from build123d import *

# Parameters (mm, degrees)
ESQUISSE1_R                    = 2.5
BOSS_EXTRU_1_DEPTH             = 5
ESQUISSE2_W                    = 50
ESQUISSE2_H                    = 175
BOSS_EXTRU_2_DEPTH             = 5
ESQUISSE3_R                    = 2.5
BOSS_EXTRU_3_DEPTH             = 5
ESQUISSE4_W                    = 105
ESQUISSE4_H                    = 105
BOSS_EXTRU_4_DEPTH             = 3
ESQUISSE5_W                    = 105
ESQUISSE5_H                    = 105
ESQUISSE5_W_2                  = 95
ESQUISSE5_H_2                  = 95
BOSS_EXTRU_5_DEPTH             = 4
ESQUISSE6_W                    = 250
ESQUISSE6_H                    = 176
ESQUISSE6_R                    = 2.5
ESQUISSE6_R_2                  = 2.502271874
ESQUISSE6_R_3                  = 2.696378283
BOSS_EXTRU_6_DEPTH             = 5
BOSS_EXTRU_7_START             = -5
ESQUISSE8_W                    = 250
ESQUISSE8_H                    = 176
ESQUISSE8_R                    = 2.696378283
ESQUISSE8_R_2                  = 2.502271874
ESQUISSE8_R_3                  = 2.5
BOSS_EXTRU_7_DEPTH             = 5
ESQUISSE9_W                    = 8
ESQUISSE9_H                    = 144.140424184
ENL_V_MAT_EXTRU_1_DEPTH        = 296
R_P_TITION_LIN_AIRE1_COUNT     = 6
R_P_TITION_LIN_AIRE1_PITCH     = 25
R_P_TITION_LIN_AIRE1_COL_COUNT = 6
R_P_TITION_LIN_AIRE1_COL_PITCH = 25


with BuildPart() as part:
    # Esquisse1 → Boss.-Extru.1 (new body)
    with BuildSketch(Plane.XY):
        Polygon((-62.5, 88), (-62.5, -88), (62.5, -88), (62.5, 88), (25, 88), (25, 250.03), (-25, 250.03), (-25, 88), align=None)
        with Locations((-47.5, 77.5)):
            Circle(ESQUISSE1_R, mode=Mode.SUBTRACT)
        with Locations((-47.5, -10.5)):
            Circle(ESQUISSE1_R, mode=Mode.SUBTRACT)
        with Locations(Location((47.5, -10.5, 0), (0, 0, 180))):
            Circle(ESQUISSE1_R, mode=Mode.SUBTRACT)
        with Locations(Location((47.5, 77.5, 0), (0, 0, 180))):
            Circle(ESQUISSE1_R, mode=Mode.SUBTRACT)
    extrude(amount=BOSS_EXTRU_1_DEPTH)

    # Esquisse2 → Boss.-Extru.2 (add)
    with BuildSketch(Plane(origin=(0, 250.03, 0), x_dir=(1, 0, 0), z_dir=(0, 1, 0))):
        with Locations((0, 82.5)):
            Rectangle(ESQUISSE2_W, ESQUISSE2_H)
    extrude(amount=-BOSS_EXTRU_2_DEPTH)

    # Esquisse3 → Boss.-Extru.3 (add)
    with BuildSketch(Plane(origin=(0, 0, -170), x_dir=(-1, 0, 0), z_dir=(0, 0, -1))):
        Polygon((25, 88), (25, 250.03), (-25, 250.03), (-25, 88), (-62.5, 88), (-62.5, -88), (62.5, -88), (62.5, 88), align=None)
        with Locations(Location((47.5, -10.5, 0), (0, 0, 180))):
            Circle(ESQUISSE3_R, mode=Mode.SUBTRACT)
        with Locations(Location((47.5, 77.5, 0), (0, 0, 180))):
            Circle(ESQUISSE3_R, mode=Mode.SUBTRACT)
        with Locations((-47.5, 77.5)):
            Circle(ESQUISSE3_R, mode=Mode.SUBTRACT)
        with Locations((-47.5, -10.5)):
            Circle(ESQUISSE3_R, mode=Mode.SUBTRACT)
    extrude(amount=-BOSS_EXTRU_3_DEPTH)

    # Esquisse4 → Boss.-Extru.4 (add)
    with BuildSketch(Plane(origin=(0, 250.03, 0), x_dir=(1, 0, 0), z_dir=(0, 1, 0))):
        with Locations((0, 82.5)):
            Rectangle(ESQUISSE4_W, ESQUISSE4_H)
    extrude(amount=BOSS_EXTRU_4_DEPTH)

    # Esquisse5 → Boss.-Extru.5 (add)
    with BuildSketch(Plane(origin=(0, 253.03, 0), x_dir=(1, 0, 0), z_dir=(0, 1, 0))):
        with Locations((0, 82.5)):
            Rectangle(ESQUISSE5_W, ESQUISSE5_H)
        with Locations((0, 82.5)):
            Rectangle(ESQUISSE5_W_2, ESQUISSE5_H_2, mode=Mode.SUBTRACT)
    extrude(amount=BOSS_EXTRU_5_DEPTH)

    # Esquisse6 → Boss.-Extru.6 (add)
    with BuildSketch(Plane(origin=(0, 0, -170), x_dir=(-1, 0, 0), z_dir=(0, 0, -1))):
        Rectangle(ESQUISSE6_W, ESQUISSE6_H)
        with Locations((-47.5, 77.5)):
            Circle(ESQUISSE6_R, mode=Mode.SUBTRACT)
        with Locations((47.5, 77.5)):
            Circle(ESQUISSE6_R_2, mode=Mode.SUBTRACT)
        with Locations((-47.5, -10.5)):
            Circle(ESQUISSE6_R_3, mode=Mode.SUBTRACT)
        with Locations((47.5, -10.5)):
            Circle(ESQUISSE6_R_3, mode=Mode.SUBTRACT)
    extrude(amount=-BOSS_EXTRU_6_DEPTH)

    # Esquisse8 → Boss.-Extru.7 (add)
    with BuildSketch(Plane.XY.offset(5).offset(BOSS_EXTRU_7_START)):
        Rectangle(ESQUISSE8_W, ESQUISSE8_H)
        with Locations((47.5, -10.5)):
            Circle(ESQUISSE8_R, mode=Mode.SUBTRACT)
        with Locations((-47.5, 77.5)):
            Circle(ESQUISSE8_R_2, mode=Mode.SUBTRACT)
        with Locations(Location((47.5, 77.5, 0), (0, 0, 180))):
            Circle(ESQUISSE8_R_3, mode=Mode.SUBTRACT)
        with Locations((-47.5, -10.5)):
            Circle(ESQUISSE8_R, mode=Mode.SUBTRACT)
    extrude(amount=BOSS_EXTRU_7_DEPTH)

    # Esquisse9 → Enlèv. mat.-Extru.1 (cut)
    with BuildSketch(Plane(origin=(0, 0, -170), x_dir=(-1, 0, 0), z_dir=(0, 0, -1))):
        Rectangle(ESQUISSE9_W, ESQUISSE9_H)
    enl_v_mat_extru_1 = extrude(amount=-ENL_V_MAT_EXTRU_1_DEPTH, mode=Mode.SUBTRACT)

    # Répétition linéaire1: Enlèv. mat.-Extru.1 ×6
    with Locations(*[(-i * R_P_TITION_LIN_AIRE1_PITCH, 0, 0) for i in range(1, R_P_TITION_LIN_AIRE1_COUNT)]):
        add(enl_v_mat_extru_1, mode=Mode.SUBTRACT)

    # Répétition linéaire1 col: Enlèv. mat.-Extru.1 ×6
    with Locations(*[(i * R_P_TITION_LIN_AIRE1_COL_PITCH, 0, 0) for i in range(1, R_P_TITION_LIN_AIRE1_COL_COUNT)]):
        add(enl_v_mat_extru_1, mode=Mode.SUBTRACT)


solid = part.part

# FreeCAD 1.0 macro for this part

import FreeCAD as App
import Part
import Sketcher
from FreeCAD import Vector


def add_polygon(sketch, points):
    """Adds a closed chain of lines whose ends are joined by coincident constraints."""
    first, n = sketch.GeometryCount, len(points)
    for a, b in zip(points, points[1:] + points[:1]):
        sketch.addGeometry(Part.LineSegment(App.Vector(*a, 0), App.Vector(*b, 0)), False)
    for i in range(n):
        sketch.addConstraint(Sketcher.Constraint("Coincident", first + i, 2, first + (i + 1) % n, 1))

doc = App.newDocument("Part")
body = doc.addObject("PartDesign::Body", "Body")

# Sketch on XY plane
sketch1 = doc.addObject("Sketcher::SketchObject", "Sketch")
body.addObject(sketch1)
sketch1.AttachmentSupport = (doc.XY_Plane, [""])
sketch1.MapMode = "FlatFace"
add_polygon(sketch1, [(-62.5, 88), (-62.5, -88), (62.5, -88), (62.5, 88), (25, 88), (25, 250), (-25, 250), (-25, 88)])  # lines 0-7
sketch1.addGeometry(Part.Circle(Vector(-47.5, -10.5, 0), Vector(0, 0, 1), 2.5), False)  # 8
sketch1.addGeometry(Part.Circle(Vector(47.5, -10.5, 0), Vector(0, 0, 1), 2.5), False)  # 9
sketch1.addGeometry(Part.Circle(Vector(-47.5, 77.5, 0), Vector(0, 0, 1), 2.5), False)  # 10
sketch1.addGeometry(Part.Circle(Vector(47.5, 77.5, 0), Vector(0, 0, 1), 2.5), False)  # 11
sketch1.addConstraint(Sketcher.Constraint("Vertical", 0))
sketch1.addConstraint(Sketcher.Constraint("Horizontal", 1))
sketch1.addConstraint(Sketcher.Constraint("Vertical", 2))
sketch1.addConstraint(Sketcher.Constraint("Horizontal", 3))
sketch1.addConstraint(Sketcher.Constraint("Vertical", 4))
sketch1.addConstraint(Sketcher.Constraint("Horizontal", 5))
sketch1.addConstraint(Sketcher.Constraint("Vertical", 6))
sketch1.addConstraint(Sketcher.Constraint("Horizontal", 7))
sketch1.addConstraint(Sketcher.Constraint("Equal", 8, 9))
sketch1.addConstraint(Sketcher.Constraint("Equal", 9, 10))
sketch1.addConstraint(Sketcher.Constraint("Equal", 10, 11))
sketch1.addConstraint(Sketcher.Constraint("Symmetric", 0, 2, 2, 2, -1, 1))
sketch1.addConstraint(Sketcher.Constraint("Symmetric", 8, 3, 9, 3, -2))
sketch1.addConstraint(Sketcher.Constraint("Symmetric", 10, 3, 11, 3, -2))
sketch1.addConstraint(Sketcher.Constraint("Symmetric", 3, 2, 6, 2, -2))
sketch1.addConstraint(Sketcher.Constraint("Vertical", 8, 3, 10, 3))
sketch1.addConstraint(Sketcher.Constraint("Diameter", 8, 5.0))
sketch1.addConstraint(Sketcher.Constraint("DistanceX", 1, 1, 1, 2, 125.0))
sketch1.addConstraint(Sketcher.Constraint("DistanceX", 5, 2, 5, 1, 50.0))
sketch1.addConstraint(Sketcher.Constraint("DistanceY", 0, 2, 0, 1, 176.0))
sketch1.addConstraint(Sketcher.Constraint("DistanceX", 8, 3, 9, 3, 95.0))
sketch1.addConstraint(Sketcher.Constraint("DistanceY", 8, 3, 10, 3, 88.0))
sketch1.addConstraint(Sketcher.Constraint("DistanceY", 4, 1, 4, 2, 162.03))
sketch1.addConstraint(Sketcher.Constraint("DistanceY", 8, 3, -1, 1, 10.5))
pad1 = doc.addObject("PartDesign::Pad", "Pad")
body.addObject(pad1)
pad1.Profile = sketch1
pad1.Length = 5

# Sketch on XZ plane
sketch2 = doc.addObject("Sketcher::SketchObject", "Sketch001")
body.addObject(sketch2)
sketch2.AttachmentSupport = (doc.XZ_Plane, [""])
sketch2.MapMode = "FlatFace"
sketch2.AttachmentOffset = App.Placement(Vector(0, 0, -250.03), App.Rotation())
add_polygon(sketch2, [(-25, -170), (-25, 5), (25, 5), (25, -170)])  # lines 0-3
sketch2.addConstraint(Sketcher.Constraint("Vertical", 0))
sketch2.addConstraint(Sketcher.Constraint("Horizontal", 1))
sketch2.addConstraint(Sketcher.Constraint("Vertical", 2))
sketch2.addConstraint(Sketcher.Constraint("Horizontal", 3))
sketch2.addConstraint(Sketcher.Constraint("DistanceX", 1, 1, 1, 2, 50.0))
sketch2.addConstraint(Sketcher.Constraint("DistanceY", 0, 1, 0, 2, 175.0))
sketch2.addConstraint(Sketcher.Constraint("DistanceX", 0, 2, -1, 1, 25.0))
sketch2.addConstraint(Sketcher.Constraint("DistanceY", -1, 1, 0, 2, 5.0))
pad2 = doc.addObject("PartDesign::Pad", "Pad001")
body.addObject(pad2)
pad2.Profile = sketch2
pad2.Length = 5

# Sketch on XY plane
sketch3 = doc.addObject("Sketcher::SketchObject", "Sketch002")
body.addObject(sketch3)
sketch3.AttachmentSupport = (doc.XY_Plane, [""])
sketch3.MapMode = "FlatFace"
sketch3.AttachmentOffset = App.Placement(Vector(0, 0, -170), App.Rotation())
add_polygon(sketch3, [(-25, 88), (-25, 250), (25, 250), (25, 88), (62.5, 88), (62.5, -88), (-62.5, -88), (-62.5, 88)])  # lines 0-7
sketch3.addGeometry(Part.Circle(Vector(47.5, -10.5, 0), Vector(0, 0, 1), 2.5), False)  # 8
sketch3.addGeometry(Part.Circle(Vector(-47.5, -10.5, 0), Vector(0, 0, 1), 2.5), False)  # 9
sketch3.addGeometry(Part.Circle(Vector(47.5, 77.5, 0), Vector(0, 0, 1), 2.5), False)  # 10
sketch3.addGeometry(Part.Circle(Vector(-47.5, 77.5, 0), Vector(0, 0, 1), 2.5), False)  # 11
sketch3.addConstraint(Sketcher.Constraint("Vertical", 0))
sketch3.addConstraint(Sketcher.Constraint("Horizontal", 1))
sketch3.addConstraint(Sketcher.Constraint("Vertical", 2))
sketch3.addConstraint(Sketcher.Constraint("Horizontal", 3))
sketch3.addConstraint(Sketcher.Constraint("Vertical", 4))
sketch3.addConstraint(Sketcher.Constraint("Horizontal", 5))
sketch3.addConstraint(Sketcher.Constraint("Vertical", 6))
sketch3.addConstraint(Sketcher.Constraint("Horizontal", 7))
sketch3.addConstraint(Sketcher.Constraint("Equal", 8, 9))
sketch3.addConstraint(Sketcher.Constraint("Equal", 9, 10))
sketch3.addConstraint(Sketcher.Constraint("Equal", 10, 11))
sketch3.addConstraint(Sketcher.Constraint("Symmetric", 3, 2, 5, 2, -1, 1))
sketch3.addConstraint(Sketcher.Constraint("Symmetric", 8, 3, 9, 3, -2))
sketch3.addConstraint(Sketcher.Constraint("Symmetric", 10, 3, 11, 3, -2))
sketch3.addConstraint(Sketcher.Constraint("Symmetric", 2, 2, 7, 2, -2))
sketch3.addConstraint(Sketcher.Constraint("Vertical", 8, 3, 10, 3))
sketch3.addConstraint(Sketcher.Constraint("Diameter", 8, 5.0))
sketch3.addConstraint(Sketcher.Constraint("DistanceX", 1, 1, 1, 2, 50.0))
sketch3.addConstraint(Sketcher.Constraint("DistanceX", 5, 2, 5, 1, 125.0))
sketch3.addConstraint(Sketcher.Constraint("DistanceY", 4, 2, 4, 1, 176.0))
sketch3.addConstraint(Sketcher.Constraint("DistanceX", 9, 3, 8, 3, 95.0))
sketch3.addConstraint(Sketcher.Constraint("DistanceY", 8, 3, 10, 3, 88.0))
sketch3.addConstraint(Sketcher.Constraint("DistanceY", 0, 1, 0, 2, 162.03))
sketch3.addConstraint(Sketcher.Constraint("DistanceY", 8, 3, -1, 1, 10.5))
pad3 = doc.addObject("PartDesign::Pad", "Pad002")
body.addObject(pad3)
pad3.Profile = sketch3
pad3.Length = 5

# Sketch on XZ plane
sketch4 = doc.addObject("Sketcher::SketchObject", "Sketch003")
body.addObject(sketch4)
sketch4.AttachmentSupport = (doc.XZ_Plane, [""])
sketch4.MapMode = "FlatFace"
sketch4.AttachmentOffset = App.Placement(Vector(0, 0, -250.03), App.Rotation())
add_polygon(sketch4, [(-52, -135), (-52, -30), (52, -30), (52, -135)])  # lines 0-3
sketch4.addConstraint(Sketcher.Constraint("Vertical", 0))
sketch4.addConstraint(Sketcher.Constraint("Horizontal", 1))
sketch4.addConstraint(Sketcher.Constraint("Vertical", 2))
sketch4.addConstraint(Sketcher.Constraint("Horizontal", 3))
sketch4.addConstraint(Sketcher.Constraint("Equal", 3, 0))
sketch4.addConstraint(Sketcher.Constraint("DistanceX", 1, 1, 1, 2, 105.0))
sketch4.addConstraint(Sketcher.Constraint("DistanceY", 0, 2, -1, 1, 30.0))
sketch4.addConstraint(Sketcher.Constraint("DistanceX", 0, 2, -1, 1, 52.5))
pad4 = doc.addObject("PartDesign::Pad", "Pad003")
body.addObject(pad4)
pad4.Profile = sketch4
pad4.Length = 3
pad4.Reversed = True

# Sketch on XZ plane
sketch5 = doc.addObject("Sketcher::SketchObject", "Sketch004")
body.addObject(sketch5)
sketch5.AttachmentSupport = (doc.XZ_Plane, [""])
sketch5.MapMode = "FlatFace"
sketch5.AttachmentOffset = App.Placement(Vector(0, 0, -253.03), App.Rotation())
add_polygon(sketch5, [(-52, -135), (-52, -30), (52, -30), (52, -135)])  # lines 0-3
add_polygon(sketch5, [(48, -35), (-48, -35), (-48, -130), (48, -130)])  # lines 4-7
sketch5.addConstraint(Sketcher.Constraint("Vertical", 0))
sketch5.addConstraint(Sketcher.Constraint("Horizontal", 1))
sketch5.addConstraint(Sketcher.Constraint("Vertical", 2))
sketch5.addConstraint(Sketcher.Constraint("Horizontal", 3))
sketch5.addConstraint(Sketcher.Constraint("Horizontal", 4))
sketch5.addConstraint(Sketcher.Constraint("Vertical", 5))
sketch5.addConstraint(Sketcher.Constraint("Horizontal", 6))
sketch5.addConstraint(Sketcher.Constraint("Vertical", 7))
sketch5.addConstraint(Sketcher.Constraint("Equal", 3, 0))
sketch5.addConstraint(Sketcher.Constraint("Equal", 6, 5))
sketch5.addConstraint(Sketcher.Constraint("DistanceX", 1, 1, 1, 2, 105.0))
sketch5.addConstraint(Sketcher.Constraint("DistanceX", 4, 2, 4, 1, 95.0))
sketch5.addConstraint(Sketcher.Constraint("DistanceY", 0, 2, -1, 1, 30.0))
sketch5.addConstraint(Sketcher.Constraint("DistanceY", 4, 2, -1, 1, 35.0))
sketch5.addConstraint(Sketcher.Constraint("DistanceX", 0, 2, 4, 2, 5.0))
sketch5.addConstraint(Sketcher.Constraint("DistanceX", 0, 2, -1, 1, 52.5))
pad5 = doc.addObject("PartDesign::Pad", "Pad004")
body.addObject(pad5)
pad5.Profile = sketch5
pad5.Length = 4
pad5.Reversed = True

# Sketch on XY plane
sketch6 = doc.addObject("Sketcher::SketchObject", "Sketch005")
body.addObject(sketch6)
sketch6.AttachmentSupport = (doc.XY_Plane, [""])
sketch6.MapMode = "FlatFace"
sketch6.AttachmentOffset = App.Placement(Vector(0, 0, -170), App.Rotation())
add_polygon(sketch6, [(125, 88), (125, -88), (-125, -88), (-125, 88)])  # lines 0-3
sketch6.addGeometry(Part.Circle(Vector(47.5, -10.5, 0), Vector(0, 0, 1), 2.7), False)  # 4
sketch6.addGeometry(Part.Circle(Vector(-47.5, -10.5, 0), Vector(0, 0, 1), 2.7), False)  # 5
sketch6.addGeometry(Part.Circle(Vector(47.5, 77.5, 0), Vector(0, 0, 1), 2.5), False)  # 6
sketch6.addGeometry(Part.Circle(Vector(-47.5, 77.5, 0), Vector(0, 0, 1), 2.5), False)  # 7
sketch6.addConstraint(Sketcher.Constraint("Vertical", 0))
sketch6.addConstraint(Sketcher.Constraint("Horizontal", 1))
sketch6.addConstraint(Sketcher.Constraint("Vertical", 2))
sketch6.addConstraint(Sketcher.Constraint("Horizontal", 3))
sketch6.addConstraint(Sketcher.Constraint("Equal", 4, 5))
sketch6.addConstraint(Sketcher.Constraint("Symmetric", 0, 2, 2, 2, -1, 1))
sketch6.addConstraint(Sketcher.Constraint("Symmetric", 4, 3, 5, 3, -2))
sketch6.addConstraint(Sketcher.Constraint("Symmetric", 6, 3, 7, 3, -2))
sketch6.addConstraint(Sketcher.Constraint("Vertical", 4, 3, 6, 3))
sketch6.addConstraint(Sketcher.Constraint("Diameter", 6, 5.0))
sketch6.addConstraint(Sketcher.Constraint("DistanceX", 1, 2, 1, 1, 250.0))
sketch6.addConstraint(Sketcher.Constraint("DistanceY", 0, 2, 0, 1, 176.0))
sketch6.addConstraint(Sketcher.Constraint("DistanceX", 5, 3, 4, 3, 95.0))
sketch6.addConstraint(Sketcher.Constraint("DistanceY", 4, 3, 6, 3, 88.0))
sketch6.addConstraint(Sketcher.Constraint("DistanceY", 4, 3, -1, 1, 10.5))
sketch6.addConstraint(Sketcher.Constraint("Diameter", 4, 5.392757))
sketch6.addConstraint(Sketcher.Constraint("Diameter", 7, 5.004544))
pad6 = doc.addObject("PartDesign::Pad", "Pad005")
body.addObject(pad6)
pad6.Profile = sketch6
pad6.Length = 5

# Sketch on XY plane
sketch7 = doc.addObject("Sketcher::SketchObject", "Sketch006")
body.addObject(sketch7)
sketch7.AttachmentSupport = (doc.XY_Plane, [""])
sketch7.MapMode = "FlatFace"
add_polygon(sketch7, [(-125, 88), (-125, -88), (125, -88), (125, 88)])  # lines 0-3
sketch7.addGeometry(Part.Circle(Vector(-47.5, -10.5, 0), Vector(0, 0, 1), 2.7), False)  # 4
sketch7.addGeometry(Part.Circle(Vector(47.5, -10.5, 0), Vector(0, 0, 1), 2.7), False)  # 5
sketch7.addGeometry(Part.Circle(Vector(-47.5, 77.5, 0), Vector(0, 0, 1), 2.5), False)  # 6
sketch7.addGeometry(Part.Circle(Vector(47.5, 77.5, 0), Vector(0, 0, 1), 2.5), False)  # 7
sketch7.addConstraint(Sketcher.Constraint("Vertical", 0))
sketch7.addConstraint(Sketcher.Constraint("Horizontal", 1))
sketch7.addConstraint(Sketcher.Constraint("Vertical", 2))
sketch7.addConstraint(Sketcher.Constraint("Horizontal", 3))
sketch7.addConstraint(Sketcher.Constraint("Equal", 4, 5))
sketch7.addConstraint(Sketcher.Constraint("Symmetric", 0, 2, 2, 2, -1, 1))
sketch7.addConstraint(Sketcher.Constraint("Symmetric", 4, 3, 5, 3, -2))
sketch7.addConstraint(Sketcher.Constraint("Symmetric", 6, 3, 7, 3, -2))
sketch7.addConstraint(Sketcher.Constraint("Vertical", 4, 3, 6, 3))
sketch7.addConstraint(Sketcher.Constraint("Diameter", 7, 5.0))
sketch7.addConstraint(Sketcher.Constraint("DistanceX", 1, 1, 1, 2, 250.0))
sketch7.addConstraint(Sketcher.Constraint("DistanceY", 0, 2, 0, 1, 176.0))
sketch7.addConstraint(Sketcher.Constraint("DistanceX", 4, 3, 5, 3, 95.0))
sketch7.addConstraint(Sketcher.Constraint("DistanceY", 4, 3, 6, 3, 88.0))
sketch7.addConstraint(Sketcher.Constraint("DistanceY", 4, 3, -1, 1, 10.5))
sketch7.addConstraint(Sketcher.Constraint("Diameter", 4, 5.392757))
sketch7.addConstraint(Sketcher.Constraint("Diameter", 6, 5.004544))
pad7 = doc.addObject("PartDesign::Pad", "Pad006")
body.addObject(pad7)
pad7.Profile = sketch7
pad7.Length = 5

# Sketch on XY plane
sketch8 = doc.addObject("Sketcher::SketchObject", "Sketch007")
body.addObject(sketch8)
sketch8.AttachmentSupport = (doc.XY_Plane, [""])
sketch8.MapMode = "FlatFace"
sketch8.AttachmentOffset = App.Placement(Vector(0, 0, -170), App.Rotation())
add_polygon(sketch8, [(4, 72), (4, -72), (-4, -72), (-4, 72)])  # lines 0-3
sketch8.addConstraint(Sketcher.Constraint("Vertical", 0))
sketch8.addConstraint(Sketcher.Constraint("Horizontal", 1))
sketch8.addConstraint(Sketcher.Constraint("Vertical", 2))
sketch8.addConstraint(Sketcher.Constraint("Horizontal", 3))
sketch8.addConstraint(Sketcher.Constraint("Symmetric", 0, 2, 2, 2, -1, 1))
sketch8.addConstraint(Sketcher.Constraint("DistanceX", 1, 2, 1, 1, 8.0))
sketch8.addConstraint(Sketcher.Constraint("DistanceY", 0, 2, 0, 1, 144.140424))
pocket1 = doc.addObject("PartDesign::Pocket", "Pocket")
body.addObject(pocket1)
pocket1.Profile = sketch8
pocket1.Length = 296
pocket1.Reversed = True
doc.recompute()

linearpattern = doc.addObject("PartDesign::LinearPattern", "LinearPattern")
body.addObject(linearpattern)
linearpattern.Originals = [pocket1]
linearpattern.Direction = (doc.X_Axis, [""])
linearpattern.Mode = "offset"
linearpattern.Offset = 25
linearpattern.Occurrences = 6
linearpattern.Reversed = True
body.Tip = linearpattern
doc.recompute()

linearpattern2 = doc.addObject("PartDesign::LinearPattern", "LinearPattern001")
body.addObject(linearpattern2)
linearpattern2.Originals = [pocket1]
linearpattern2.Direction = (doc.X_Axis, [""])
linearpattern2.Mode = "offset"
linearpattern2.Offset = 25
linearpattern2.Occurrences = 6
body.Tip = linearpattern2

doc.recompute()
